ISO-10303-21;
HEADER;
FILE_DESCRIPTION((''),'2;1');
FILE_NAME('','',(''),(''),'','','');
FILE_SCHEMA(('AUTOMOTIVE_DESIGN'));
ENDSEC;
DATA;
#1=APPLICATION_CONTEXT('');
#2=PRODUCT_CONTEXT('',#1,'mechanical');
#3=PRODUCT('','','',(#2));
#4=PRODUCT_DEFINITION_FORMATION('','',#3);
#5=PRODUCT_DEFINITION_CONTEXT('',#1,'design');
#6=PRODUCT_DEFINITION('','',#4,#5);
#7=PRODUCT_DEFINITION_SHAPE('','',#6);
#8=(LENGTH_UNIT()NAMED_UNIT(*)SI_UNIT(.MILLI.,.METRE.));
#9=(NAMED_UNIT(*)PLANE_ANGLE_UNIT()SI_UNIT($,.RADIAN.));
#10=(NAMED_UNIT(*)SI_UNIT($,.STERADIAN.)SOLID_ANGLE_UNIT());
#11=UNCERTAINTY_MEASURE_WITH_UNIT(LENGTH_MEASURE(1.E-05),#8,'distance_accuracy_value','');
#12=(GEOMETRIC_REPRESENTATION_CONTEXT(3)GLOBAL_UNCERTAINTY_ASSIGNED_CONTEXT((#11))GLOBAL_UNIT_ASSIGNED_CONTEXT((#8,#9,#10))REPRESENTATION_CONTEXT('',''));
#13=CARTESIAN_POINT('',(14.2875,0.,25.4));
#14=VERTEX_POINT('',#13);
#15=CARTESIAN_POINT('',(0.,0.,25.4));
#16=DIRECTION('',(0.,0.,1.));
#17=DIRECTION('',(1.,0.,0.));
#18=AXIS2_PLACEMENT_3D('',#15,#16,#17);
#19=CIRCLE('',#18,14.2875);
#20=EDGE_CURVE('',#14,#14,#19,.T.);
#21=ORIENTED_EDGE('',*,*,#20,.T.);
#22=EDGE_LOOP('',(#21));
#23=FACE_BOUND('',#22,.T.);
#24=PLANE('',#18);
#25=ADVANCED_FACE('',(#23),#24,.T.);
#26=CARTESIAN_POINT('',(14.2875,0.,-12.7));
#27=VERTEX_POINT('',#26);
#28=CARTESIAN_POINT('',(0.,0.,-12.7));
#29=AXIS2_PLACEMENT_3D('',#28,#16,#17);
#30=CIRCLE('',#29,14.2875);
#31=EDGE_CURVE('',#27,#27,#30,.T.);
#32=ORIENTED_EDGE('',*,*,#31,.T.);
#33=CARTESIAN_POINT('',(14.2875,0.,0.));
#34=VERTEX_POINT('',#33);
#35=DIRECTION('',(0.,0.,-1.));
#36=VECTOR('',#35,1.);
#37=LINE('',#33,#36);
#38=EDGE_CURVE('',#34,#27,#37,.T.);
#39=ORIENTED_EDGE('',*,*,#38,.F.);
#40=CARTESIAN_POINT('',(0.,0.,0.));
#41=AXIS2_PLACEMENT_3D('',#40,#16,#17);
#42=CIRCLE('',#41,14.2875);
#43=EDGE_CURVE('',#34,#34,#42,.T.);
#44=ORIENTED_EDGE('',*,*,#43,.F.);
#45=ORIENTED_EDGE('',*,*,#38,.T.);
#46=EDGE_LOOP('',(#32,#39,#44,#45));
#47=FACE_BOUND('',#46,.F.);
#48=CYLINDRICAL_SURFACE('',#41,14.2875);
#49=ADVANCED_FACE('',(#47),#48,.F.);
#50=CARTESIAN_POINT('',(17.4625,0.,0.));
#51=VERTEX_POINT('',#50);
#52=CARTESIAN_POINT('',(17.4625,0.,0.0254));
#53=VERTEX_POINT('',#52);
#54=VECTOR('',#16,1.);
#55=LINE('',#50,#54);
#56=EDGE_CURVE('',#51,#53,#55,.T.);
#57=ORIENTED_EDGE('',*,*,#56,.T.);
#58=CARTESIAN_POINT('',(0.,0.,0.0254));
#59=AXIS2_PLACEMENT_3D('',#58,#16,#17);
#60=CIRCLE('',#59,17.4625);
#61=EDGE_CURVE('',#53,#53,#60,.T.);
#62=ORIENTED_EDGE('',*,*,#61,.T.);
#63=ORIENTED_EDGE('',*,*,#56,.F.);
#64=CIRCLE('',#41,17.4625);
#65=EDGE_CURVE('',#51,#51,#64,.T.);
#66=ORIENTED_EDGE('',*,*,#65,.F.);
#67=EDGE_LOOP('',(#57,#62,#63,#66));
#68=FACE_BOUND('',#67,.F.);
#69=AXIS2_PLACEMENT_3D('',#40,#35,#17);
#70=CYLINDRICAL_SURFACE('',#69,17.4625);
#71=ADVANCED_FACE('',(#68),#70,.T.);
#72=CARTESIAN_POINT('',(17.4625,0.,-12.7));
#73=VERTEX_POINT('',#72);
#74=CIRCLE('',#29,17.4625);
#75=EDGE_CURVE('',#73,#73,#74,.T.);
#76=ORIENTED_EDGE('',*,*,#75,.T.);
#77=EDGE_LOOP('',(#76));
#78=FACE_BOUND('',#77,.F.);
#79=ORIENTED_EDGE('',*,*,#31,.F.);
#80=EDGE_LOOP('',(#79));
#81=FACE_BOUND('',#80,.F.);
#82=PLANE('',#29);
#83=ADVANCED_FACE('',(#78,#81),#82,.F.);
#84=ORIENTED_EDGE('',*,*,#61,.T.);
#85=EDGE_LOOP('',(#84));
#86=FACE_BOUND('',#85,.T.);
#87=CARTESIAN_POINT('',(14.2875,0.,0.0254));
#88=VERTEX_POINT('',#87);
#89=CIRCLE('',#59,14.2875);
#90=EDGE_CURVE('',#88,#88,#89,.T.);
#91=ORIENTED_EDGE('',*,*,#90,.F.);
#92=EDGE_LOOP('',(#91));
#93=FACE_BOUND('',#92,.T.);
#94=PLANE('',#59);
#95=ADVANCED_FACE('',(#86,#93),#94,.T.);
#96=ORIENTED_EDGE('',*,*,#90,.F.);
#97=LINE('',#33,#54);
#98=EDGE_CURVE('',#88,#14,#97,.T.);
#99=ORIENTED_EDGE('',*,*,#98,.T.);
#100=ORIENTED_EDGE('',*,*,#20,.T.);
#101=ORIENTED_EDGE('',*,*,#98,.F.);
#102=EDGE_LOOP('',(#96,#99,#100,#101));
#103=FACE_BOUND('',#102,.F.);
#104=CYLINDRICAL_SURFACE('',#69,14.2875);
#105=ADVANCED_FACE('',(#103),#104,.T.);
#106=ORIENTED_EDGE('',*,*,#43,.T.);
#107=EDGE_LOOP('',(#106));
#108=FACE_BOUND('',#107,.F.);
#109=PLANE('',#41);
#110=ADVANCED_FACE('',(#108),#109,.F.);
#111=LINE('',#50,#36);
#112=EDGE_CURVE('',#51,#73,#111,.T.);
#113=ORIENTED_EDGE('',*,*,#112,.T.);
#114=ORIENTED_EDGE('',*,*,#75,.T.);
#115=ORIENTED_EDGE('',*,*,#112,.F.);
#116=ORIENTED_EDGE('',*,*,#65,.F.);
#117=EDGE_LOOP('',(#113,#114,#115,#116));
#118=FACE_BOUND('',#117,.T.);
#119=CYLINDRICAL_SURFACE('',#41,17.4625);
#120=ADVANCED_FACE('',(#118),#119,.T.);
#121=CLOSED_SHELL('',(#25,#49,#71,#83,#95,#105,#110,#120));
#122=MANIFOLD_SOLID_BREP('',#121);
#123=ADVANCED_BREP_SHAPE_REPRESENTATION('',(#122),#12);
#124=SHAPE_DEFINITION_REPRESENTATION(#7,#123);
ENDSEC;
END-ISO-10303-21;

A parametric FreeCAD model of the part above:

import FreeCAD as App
import Part
import Sketcher

V = App.Vector
Q = App.Units.Quantity

doc = App.newDocument("Part")
body = doc.addObject("PartDesign::Body", "Body")

# Sketch on XY plane
sketch1 = body.newObject("Sketcher::SketchObject", "Sketch")
sketch1.AttachmentSupport = (doc.getObject("XY_Plane"), [""])
sketch1.MapMode = "FlatFace"
sketch1.addGeometry(Part.Circle(V(0, 0, 0), V(0, 0, 1), 14.2875), False)
sketch1.addConstraint([
    Sketcher.Constraint("Coincident", 0, 3, -1, 1),
    Sketcher.Constraint("Diameter", 0, Q("1.125 in")),
])
pad1 = body.newObject("PartDesign::Pad", "Pad")
pad1.Profile = sketch1
pad1.Length = Q("1 in")

# Sketch on XY plane
sketch2 = body.newObject("Sketcher::SketchObject", "Sketch001")
sketch2.AttachmentSupport = (doc.getObject("XY_Plane"), [""])
sketch2.MapMode = "FlatFace"
sketch2.addGeometry([
    Part.Circle(V(0, 0, 0), V(0, 0, 1), 17.4625),
    Part.Circle(V(0, 0, 0), V(0, 0, 1), 14.2875),
], False)
sketch2.addConstraint([
    Sketcher.Constraint("Coincident", 0, 3, -1, 1),
    Sketcher.Constraint("Coincident", 1, 3, -1, 1),
    Sketcher.Constraint("Diameter", 0, Q("1.375 in")),
    Sketcher.Constraint("Diameter", 1, Q("1.125 in")),
])
pad2 = body.newObject("PartDesign::Pad", "Pad001")
pad2.Profile = sketch2
pad2.Type = "TwoLengths"
pad2.Length = Q("0.5 in")
pad2.Length2 = Q("0.001 in")
pad2.Reversed = True

doc.recompute()
